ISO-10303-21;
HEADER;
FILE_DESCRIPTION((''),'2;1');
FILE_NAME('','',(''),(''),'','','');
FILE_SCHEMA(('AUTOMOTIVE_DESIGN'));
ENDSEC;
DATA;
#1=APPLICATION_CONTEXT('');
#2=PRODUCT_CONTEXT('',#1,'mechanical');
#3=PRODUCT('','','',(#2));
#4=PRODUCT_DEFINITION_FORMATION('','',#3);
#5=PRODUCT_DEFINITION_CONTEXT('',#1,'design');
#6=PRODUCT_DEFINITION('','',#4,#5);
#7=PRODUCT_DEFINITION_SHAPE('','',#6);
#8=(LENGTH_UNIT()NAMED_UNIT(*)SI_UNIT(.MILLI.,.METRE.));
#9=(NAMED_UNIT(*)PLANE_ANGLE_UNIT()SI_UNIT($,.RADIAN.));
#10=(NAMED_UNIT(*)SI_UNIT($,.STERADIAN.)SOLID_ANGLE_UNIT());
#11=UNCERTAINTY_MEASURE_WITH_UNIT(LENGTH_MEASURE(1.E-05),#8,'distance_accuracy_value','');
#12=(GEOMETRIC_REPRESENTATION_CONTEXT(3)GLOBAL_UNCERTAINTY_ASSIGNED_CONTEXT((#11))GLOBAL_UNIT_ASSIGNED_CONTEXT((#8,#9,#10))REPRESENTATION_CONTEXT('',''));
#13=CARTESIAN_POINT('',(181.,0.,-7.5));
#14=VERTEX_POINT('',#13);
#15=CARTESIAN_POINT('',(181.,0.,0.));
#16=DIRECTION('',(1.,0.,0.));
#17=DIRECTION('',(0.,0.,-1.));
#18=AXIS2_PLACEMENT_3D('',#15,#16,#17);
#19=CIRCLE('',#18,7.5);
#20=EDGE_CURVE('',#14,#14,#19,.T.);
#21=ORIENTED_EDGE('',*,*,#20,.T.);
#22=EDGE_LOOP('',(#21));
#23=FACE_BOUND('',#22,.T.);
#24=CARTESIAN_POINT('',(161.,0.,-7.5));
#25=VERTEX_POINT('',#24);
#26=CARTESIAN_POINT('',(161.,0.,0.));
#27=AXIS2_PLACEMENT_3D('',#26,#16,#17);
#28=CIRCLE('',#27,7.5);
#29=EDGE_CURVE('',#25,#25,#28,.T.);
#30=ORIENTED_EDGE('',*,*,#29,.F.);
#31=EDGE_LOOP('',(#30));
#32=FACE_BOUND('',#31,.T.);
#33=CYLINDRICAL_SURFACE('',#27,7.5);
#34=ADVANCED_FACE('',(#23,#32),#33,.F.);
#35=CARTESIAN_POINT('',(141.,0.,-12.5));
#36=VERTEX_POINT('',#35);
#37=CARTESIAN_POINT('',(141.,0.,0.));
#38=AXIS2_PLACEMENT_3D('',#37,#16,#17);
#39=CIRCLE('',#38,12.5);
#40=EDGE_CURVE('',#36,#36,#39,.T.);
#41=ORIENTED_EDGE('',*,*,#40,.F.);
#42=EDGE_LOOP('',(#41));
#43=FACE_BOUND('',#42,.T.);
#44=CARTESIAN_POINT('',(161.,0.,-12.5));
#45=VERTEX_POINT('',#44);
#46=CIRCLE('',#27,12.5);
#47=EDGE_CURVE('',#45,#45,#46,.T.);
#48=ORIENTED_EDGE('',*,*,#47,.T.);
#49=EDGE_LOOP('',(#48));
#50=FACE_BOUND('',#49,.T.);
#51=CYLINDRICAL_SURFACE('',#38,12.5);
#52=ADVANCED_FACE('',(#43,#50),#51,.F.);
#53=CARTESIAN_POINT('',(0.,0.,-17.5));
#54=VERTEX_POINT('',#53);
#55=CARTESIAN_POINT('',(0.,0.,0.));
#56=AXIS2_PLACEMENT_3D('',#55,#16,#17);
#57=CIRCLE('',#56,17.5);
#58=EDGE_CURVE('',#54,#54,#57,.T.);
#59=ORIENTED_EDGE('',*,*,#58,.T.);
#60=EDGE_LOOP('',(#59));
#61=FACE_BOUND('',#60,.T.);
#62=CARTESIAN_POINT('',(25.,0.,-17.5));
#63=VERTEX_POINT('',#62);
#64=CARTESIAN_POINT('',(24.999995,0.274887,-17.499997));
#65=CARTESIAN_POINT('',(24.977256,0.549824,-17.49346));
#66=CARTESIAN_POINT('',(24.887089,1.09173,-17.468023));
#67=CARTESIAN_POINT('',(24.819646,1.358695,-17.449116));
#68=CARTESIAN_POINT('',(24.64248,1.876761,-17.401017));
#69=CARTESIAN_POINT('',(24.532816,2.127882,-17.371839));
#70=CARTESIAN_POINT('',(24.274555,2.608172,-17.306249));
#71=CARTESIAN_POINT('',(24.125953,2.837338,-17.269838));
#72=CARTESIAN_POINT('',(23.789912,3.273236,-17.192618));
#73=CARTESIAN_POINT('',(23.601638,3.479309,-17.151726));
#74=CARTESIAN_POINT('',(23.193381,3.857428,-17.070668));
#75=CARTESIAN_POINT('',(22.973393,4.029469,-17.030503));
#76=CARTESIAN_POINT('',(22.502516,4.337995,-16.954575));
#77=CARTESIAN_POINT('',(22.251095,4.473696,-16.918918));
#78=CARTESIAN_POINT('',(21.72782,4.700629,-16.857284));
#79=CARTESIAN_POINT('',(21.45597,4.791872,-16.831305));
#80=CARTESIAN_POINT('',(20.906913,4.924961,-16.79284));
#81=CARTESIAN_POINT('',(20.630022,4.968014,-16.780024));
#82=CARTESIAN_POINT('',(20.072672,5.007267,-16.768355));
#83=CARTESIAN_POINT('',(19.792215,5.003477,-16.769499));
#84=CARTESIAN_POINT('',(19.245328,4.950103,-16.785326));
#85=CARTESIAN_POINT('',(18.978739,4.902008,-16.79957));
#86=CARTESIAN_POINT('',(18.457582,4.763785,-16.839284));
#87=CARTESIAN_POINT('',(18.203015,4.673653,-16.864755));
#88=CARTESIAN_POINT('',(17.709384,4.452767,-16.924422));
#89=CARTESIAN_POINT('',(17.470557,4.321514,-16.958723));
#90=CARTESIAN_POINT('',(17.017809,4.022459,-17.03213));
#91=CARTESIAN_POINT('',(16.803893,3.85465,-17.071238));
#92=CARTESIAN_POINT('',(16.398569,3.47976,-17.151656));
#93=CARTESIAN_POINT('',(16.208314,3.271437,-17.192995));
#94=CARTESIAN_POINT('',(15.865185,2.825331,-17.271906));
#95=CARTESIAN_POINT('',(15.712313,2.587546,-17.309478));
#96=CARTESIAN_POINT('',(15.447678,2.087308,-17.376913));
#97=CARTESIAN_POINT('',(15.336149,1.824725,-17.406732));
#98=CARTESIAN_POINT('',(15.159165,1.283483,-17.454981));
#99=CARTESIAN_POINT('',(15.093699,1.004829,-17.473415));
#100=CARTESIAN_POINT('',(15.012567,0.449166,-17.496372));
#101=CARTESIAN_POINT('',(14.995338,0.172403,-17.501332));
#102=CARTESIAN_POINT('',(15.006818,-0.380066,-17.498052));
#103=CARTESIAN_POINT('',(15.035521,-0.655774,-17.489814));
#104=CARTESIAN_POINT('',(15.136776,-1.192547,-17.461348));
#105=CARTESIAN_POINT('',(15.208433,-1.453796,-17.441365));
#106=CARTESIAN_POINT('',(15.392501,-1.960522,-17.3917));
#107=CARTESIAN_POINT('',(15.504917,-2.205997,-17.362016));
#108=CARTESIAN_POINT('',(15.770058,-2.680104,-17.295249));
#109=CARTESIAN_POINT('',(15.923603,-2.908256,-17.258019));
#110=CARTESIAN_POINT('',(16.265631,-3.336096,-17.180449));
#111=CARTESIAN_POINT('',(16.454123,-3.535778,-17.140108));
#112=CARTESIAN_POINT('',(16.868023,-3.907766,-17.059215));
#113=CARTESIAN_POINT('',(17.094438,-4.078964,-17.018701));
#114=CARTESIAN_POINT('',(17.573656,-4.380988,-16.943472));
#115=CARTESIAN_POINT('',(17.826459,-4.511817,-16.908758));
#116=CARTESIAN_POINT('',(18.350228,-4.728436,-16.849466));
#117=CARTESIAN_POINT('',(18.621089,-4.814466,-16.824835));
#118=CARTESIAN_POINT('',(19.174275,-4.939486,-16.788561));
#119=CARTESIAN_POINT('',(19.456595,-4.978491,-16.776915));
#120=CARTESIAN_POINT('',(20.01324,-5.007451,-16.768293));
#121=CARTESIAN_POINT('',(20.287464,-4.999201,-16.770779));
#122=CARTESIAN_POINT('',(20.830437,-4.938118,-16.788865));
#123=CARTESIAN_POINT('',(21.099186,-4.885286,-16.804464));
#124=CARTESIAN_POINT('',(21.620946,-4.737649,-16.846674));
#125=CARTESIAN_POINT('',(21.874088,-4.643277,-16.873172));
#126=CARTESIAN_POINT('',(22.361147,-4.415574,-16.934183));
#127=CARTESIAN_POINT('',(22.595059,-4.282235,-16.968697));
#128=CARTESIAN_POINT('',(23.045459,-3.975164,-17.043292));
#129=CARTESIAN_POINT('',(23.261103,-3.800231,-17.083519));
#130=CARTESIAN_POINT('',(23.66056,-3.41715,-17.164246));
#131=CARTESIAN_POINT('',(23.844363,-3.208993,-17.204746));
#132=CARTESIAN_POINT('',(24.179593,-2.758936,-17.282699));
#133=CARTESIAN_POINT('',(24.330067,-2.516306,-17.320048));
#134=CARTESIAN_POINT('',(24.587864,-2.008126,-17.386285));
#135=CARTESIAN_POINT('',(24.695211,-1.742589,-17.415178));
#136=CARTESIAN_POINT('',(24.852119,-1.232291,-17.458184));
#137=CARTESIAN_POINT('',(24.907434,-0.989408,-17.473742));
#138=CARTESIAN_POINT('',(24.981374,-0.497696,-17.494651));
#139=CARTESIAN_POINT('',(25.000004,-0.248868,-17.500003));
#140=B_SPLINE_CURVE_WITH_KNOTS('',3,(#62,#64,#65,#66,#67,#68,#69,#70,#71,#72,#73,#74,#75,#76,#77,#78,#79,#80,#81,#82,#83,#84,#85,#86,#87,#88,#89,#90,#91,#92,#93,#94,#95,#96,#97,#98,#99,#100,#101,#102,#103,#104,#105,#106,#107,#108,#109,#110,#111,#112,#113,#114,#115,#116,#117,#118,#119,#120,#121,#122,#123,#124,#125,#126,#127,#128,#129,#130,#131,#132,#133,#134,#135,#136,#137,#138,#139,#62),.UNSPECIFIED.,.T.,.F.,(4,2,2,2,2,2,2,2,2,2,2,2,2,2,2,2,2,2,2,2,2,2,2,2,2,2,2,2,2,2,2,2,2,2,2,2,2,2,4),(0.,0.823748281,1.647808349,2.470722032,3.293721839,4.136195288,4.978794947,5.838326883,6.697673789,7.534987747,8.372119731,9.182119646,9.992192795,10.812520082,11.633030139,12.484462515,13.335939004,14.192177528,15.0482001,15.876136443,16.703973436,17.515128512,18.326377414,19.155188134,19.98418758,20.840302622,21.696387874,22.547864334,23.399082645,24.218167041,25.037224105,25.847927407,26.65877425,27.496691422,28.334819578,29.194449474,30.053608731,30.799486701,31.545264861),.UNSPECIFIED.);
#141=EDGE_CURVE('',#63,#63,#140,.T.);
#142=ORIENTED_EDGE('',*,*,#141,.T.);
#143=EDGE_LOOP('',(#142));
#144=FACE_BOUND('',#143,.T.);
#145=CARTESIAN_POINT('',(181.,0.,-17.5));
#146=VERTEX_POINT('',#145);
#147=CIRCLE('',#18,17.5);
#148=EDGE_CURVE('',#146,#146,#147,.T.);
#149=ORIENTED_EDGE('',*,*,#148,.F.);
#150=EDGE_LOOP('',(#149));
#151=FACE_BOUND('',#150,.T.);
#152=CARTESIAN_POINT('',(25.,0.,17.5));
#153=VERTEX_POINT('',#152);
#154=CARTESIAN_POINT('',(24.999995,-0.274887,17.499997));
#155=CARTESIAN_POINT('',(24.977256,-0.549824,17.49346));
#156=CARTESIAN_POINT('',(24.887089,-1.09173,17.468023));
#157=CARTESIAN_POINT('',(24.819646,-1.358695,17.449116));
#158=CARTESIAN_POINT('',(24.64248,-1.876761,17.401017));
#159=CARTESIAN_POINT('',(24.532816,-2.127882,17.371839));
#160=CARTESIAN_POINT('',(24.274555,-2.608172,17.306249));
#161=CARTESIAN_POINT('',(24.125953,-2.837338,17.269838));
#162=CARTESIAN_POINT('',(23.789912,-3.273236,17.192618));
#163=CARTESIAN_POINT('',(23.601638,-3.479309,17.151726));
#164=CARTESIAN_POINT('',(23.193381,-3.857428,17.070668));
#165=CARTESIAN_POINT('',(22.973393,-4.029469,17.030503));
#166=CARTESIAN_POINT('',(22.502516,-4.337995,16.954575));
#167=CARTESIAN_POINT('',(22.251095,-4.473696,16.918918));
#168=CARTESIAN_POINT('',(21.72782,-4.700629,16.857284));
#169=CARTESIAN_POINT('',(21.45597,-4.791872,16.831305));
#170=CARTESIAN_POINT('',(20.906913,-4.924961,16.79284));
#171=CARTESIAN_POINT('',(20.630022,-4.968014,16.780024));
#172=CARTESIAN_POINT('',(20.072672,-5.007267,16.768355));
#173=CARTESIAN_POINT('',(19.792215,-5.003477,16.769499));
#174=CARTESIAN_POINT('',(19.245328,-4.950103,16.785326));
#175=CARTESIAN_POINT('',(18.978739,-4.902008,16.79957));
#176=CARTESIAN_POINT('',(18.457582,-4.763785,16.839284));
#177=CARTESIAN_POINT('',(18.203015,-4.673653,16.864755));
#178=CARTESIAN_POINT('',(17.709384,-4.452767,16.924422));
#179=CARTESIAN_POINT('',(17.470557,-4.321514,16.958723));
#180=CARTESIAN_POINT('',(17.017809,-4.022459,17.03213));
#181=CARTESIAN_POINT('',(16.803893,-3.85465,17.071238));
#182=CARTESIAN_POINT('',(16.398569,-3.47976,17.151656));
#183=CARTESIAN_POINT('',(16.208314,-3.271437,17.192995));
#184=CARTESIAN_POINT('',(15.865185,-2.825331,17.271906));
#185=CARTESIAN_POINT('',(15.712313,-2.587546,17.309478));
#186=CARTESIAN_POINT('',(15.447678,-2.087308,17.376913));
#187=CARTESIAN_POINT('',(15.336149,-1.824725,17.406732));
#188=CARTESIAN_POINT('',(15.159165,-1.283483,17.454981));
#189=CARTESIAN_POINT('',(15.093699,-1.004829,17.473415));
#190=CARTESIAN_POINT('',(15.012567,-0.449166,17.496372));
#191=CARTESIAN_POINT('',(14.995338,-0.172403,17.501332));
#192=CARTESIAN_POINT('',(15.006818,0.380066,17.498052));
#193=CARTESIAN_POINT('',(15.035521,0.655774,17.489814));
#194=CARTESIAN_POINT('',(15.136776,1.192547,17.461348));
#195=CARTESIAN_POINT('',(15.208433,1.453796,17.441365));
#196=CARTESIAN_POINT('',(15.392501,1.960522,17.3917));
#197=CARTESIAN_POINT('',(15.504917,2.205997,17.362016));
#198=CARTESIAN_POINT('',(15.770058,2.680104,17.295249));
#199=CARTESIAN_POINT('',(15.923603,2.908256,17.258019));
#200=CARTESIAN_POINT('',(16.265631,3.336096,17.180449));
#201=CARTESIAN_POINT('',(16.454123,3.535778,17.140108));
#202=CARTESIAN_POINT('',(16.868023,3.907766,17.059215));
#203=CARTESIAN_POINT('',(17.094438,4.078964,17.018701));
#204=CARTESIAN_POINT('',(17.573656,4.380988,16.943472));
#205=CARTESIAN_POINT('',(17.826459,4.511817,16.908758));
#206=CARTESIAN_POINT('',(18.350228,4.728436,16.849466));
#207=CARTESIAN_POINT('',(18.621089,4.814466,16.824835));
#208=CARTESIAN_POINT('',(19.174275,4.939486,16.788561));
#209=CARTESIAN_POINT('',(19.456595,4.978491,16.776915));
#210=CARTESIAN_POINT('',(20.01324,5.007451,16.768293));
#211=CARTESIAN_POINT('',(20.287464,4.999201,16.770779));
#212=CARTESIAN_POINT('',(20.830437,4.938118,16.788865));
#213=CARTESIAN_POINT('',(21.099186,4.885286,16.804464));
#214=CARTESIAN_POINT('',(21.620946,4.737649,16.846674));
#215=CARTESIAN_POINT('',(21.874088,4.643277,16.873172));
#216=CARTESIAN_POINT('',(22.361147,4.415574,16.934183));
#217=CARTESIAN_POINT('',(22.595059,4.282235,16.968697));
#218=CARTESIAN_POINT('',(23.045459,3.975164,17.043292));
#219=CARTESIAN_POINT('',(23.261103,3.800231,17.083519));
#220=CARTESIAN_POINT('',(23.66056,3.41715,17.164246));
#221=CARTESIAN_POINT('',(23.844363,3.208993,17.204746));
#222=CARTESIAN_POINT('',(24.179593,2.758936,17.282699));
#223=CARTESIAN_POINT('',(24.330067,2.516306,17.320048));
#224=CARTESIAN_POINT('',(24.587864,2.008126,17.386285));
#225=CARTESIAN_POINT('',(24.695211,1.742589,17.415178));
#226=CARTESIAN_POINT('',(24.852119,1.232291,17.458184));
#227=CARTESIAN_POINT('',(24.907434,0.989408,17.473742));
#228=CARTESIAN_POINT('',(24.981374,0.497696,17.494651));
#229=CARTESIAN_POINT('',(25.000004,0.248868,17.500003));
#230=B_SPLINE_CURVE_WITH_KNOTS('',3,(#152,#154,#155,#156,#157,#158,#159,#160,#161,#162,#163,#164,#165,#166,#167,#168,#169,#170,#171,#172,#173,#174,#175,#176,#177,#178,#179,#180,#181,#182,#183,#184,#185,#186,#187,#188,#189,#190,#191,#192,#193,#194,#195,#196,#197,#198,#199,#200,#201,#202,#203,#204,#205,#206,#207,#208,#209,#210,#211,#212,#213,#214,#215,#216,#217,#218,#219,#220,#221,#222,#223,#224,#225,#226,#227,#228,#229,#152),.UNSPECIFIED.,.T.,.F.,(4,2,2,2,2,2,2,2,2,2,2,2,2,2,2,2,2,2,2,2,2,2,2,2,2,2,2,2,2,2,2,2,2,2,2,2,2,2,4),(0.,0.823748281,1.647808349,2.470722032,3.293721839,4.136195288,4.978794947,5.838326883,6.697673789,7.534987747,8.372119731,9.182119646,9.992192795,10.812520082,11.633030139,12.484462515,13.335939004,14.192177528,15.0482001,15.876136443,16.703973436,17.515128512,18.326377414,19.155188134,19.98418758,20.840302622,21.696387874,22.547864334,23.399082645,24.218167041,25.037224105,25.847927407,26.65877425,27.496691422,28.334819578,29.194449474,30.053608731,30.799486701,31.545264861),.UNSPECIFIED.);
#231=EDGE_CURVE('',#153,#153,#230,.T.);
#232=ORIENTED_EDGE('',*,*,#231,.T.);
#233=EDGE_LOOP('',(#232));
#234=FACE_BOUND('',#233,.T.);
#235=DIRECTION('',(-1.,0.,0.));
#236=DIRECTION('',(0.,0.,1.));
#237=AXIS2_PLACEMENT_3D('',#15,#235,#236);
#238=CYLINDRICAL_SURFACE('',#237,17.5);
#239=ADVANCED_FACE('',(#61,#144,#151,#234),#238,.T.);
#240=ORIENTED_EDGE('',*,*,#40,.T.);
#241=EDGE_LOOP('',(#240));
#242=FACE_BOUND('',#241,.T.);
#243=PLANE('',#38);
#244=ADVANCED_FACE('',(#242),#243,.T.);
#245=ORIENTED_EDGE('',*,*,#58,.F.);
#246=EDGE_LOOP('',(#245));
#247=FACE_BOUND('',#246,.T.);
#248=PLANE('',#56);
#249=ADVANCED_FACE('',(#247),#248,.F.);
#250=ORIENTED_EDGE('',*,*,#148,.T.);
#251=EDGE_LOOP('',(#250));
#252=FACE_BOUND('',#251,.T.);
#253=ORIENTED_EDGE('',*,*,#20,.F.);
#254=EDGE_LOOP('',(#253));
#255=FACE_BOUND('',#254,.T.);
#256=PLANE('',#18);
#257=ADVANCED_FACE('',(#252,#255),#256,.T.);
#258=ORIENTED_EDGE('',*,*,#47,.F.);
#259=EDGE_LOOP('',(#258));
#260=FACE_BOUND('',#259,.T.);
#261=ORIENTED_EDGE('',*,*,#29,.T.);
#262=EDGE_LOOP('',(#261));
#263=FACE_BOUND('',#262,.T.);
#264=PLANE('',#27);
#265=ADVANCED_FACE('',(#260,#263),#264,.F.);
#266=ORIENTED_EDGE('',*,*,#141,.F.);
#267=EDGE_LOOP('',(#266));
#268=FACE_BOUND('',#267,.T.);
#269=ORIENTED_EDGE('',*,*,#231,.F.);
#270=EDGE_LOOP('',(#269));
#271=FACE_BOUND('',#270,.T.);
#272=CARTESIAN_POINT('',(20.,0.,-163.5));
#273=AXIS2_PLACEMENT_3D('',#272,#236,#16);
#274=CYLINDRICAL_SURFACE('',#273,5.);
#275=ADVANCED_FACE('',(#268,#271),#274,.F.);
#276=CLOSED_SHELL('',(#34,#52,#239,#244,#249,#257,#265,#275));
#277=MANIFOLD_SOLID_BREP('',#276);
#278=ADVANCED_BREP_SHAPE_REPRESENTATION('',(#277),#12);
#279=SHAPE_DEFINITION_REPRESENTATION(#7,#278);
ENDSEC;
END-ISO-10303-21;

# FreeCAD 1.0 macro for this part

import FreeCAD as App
import Part
import Sketcher
from FreeCAD import Vector
Q = App.Units.Quantity

doc = App.newDocument("Part")
body = doc.addObject("PartDesign::Body", "Body")

sketch1 = body.newObject("Sketcher::SketchObject", "Sketch")
sketch1.AttachmentSupport = (doc.getObject("YZ_Plane"), [""])
sketch1.MapMode = "FlatFace"
sketch1.addGeometry(Part.Circle(Vector(0, 0, 0), Vector(0, 0, 1), 18), False)
sketch1.addConstraint([
    Sketcher.Constraint("Coincident", 0, 3, -1, 1),
    Sketcher.Constraint("Diameter", 0, Q("35 mm")),
])
pad1 = body.newObject("PartDesign::Pad", "Pad")
pad1.Profile = sketch1
pad1.Length = 181

sketch2 = body.newObject("Sketcher::SketchObject", "Sketch001")
sketch2.AttachmentSupport = (doc.getObject("XY_Plane"), [""])
sketch2.MapMode = "FlatFace"
sketch2.AttachmentOffset = App.Placement(Vector(0, 0, 17.5), App.Rotation())
sketch2.addGeometry(Part.Circle(Vector(20, 0, 0), Vector(0, 0, 1), 5), False)
sketch2.addConstraint([
    Sketcher.Constraint("PointOnObject", 0, 3, -1),
    Sketcher.Constraint("Diameter", 0, Q("10 mm")),
    Sketcher.Constraint("DistanceX", -1, 1, 0, 3, Q("20 mm")),
])
pocket1 = body.newObject("PartDesign::Pocket", "Pocket")
pocket1.Profile = sketch2
pocket1.Length = 181

sketch3 = body.newObject("Sketcher::SketchObject", "Sketch002")
sketch3.AttachmentSupport = (doc.getObject("YZ_Plane"), [""])
sketch3.MapMode = "FlatFace"
sketch3.AttachmentOffset = App.Placement(Vector(0, 0, 181), App.Rotation())
sketch3.addGeometry(Part.Circle(Vector(0, 0, 0), Vector(0, 0, 1), 8), False)
sketch3.addConstraint([
    Sketcher.Constraint("Coincident", 0, 3, -1, 1),
    Sketcher.Constraint("Diameter", 0, Q("15 mm")),
])
pocket2 = body.newObject("PartDesign::Pocket", "Pocket001")
pocket2.Profile = sketch3
pocket2.Length = 20

sketch4 = body.newObject("Sketcher::SketchObject", "Sketch003")
sketch4.AttachmentSupport = (doc.getObject("YZ_Plane"), [""])
sketch4.MapMode = "FlatFace"
sketch4.AttachmentOffset = App.Placement(Vector(0, 0, 161), App.Rotation())
sketch4.addGeometry(Part.Circle(Vector(0, 0, 0), Vector(0, 0, 1), 12), False)
sketch4.addConstraint([
    Sketcher.Constraint("Coincident", 0, 3, -1, 1),
    Sketcher.Constraint("Diameter", 0, Q("25 mm")),
])
pocket3 = body.newObject("PartDesign::Pocket", "Pocket002")
pocket3.Profile = sketch4
pocket3.Length = 20

doc.recompute()
